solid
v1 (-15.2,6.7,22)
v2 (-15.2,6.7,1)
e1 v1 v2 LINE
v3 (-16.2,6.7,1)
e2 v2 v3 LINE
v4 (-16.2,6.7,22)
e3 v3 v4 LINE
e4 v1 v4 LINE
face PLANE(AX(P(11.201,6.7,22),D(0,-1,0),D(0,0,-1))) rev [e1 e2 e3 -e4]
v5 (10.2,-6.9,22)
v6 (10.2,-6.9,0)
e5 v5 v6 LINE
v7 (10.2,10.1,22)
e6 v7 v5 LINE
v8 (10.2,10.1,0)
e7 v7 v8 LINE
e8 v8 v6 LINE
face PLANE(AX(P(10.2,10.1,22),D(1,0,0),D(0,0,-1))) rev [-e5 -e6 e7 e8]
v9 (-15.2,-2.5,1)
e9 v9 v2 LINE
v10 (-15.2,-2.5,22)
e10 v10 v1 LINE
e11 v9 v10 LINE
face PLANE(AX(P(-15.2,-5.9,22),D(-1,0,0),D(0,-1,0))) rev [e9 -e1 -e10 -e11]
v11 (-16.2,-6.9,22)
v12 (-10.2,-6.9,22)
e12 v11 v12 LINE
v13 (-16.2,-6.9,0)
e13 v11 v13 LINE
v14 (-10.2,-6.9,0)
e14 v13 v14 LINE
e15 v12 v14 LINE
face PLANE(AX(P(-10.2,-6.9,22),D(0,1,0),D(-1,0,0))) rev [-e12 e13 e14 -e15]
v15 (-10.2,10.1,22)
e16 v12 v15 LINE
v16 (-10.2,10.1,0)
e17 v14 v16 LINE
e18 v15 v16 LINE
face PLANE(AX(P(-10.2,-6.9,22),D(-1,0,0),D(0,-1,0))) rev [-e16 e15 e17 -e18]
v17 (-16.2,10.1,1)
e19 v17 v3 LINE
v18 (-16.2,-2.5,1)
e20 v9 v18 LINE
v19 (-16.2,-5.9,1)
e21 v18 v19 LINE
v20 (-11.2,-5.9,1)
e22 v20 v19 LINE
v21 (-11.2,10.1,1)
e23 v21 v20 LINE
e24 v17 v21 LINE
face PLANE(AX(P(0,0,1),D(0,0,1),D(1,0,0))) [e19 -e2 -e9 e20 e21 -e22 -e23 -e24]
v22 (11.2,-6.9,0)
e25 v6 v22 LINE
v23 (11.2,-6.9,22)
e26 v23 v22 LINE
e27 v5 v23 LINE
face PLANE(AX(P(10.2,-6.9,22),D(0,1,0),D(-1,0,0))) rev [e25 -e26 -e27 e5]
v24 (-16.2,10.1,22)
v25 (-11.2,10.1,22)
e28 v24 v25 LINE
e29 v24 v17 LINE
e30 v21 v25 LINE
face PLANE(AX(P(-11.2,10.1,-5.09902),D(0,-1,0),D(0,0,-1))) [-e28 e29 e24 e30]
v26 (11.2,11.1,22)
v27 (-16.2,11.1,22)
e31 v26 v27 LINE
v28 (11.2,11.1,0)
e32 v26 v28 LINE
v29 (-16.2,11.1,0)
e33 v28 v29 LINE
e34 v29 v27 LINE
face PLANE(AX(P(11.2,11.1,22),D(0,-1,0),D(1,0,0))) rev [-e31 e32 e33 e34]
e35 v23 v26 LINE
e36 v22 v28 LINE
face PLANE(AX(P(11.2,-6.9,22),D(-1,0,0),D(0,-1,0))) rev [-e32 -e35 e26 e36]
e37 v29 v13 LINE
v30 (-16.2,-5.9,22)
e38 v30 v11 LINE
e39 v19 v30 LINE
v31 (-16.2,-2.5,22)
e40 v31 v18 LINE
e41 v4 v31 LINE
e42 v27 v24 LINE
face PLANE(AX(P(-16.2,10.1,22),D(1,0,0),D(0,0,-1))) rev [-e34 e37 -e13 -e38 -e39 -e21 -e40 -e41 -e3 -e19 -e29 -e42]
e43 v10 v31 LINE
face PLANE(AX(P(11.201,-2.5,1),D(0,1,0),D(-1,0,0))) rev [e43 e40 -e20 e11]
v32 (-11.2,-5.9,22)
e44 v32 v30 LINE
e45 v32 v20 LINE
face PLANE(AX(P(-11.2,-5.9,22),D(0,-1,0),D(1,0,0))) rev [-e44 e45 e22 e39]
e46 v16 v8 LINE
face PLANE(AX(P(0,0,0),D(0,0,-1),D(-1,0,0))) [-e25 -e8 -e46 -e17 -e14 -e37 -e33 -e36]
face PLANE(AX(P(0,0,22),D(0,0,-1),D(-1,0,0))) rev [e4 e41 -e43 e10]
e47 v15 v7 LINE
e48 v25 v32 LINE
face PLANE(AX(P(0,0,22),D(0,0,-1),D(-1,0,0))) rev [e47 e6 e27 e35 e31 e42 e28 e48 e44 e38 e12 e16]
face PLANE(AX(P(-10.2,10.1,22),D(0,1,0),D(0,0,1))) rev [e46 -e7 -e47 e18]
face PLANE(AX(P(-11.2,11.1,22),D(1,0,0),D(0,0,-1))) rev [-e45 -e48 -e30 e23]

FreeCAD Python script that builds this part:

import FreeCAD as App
import Part
import Sketcher
from FreeCAD import Vector
Q = App.Units.Quantity


def add_polygon(sketch, points):
    """Adds a closed chain of lines whose ends are joined by coincident constraints."""
    first, n = sketch.GeometryCount, len(points)
    for a, b in zip(points, points[1:] + points[:1]):
        sketch.addGeometry(Part.LineSegment(App.Vector(*a, 0), App.Vector(*b, 0)), False)
    for i in range(n):
        sketch.addConstraint(Sketcher.Constraint("Coincident", first + i, 2, first + (i + 1) % n, 1))

doc = App.newDocument("Part")
body = doc.addObject("PartDesign::Body", "Body")

# Sketch on XY plane
sketch1 = body.newObject("Sketcher::SketchObject", "Sketch")
sketch1.AttachmentSupport = (doc.getObject("XY_Plane"), [""])
sketch1.MapMode = "FlatFace"
add_polygon(sketch1, [(11.2, -6.9), (11.2, 11.1), (-11.2, 11.1), (-11.2, -5.9), (-15.2, -5.9), (-15.2, 10.1), (-16.2, 10.1), (-16.2, -6.9), (-10.2, -6.9), (-10.2, 10.1), (10.2, 10.1), (10.2, -6.9)])  # lines 0-11
sketch1.addConstraint([
    Sketcher.Constraint("Vertical", 0),
    Sketcher.Constraint("Horizontal", 1),
    Sketcher.Constraint("Vertical", 2),
    Sketcher.Constraint("Horizontal", 3),
    Sketcher.Constraint("Vertical", 4),
    Sketcher.Constraint("Horizontal", 5),
    Sketcher.Constraint("Vertical", 6),
    Sketcher.Constraint("Horizontal", 7),
    Sketcher.Constraint("Vertical", 8),
    Sketcher.Constraint("Horizontal", 9),
    Sketcher.Constraint("Vertical", 10),
    Sketcher.Constraint("Horizontal", 11),
    Sketcher.Constraint("Symmetric", 7, 2, 10, 2, -2),
    Sketcher.Constraint("Horizontal", 5, 2, 8, 2),
    Sketcher.Constraint("Equal", 5, 11),
    Sketcher.Constraint("Equal", 2, 6),
    Sketcher.Constraint("DistanceX", 3, 2, 3, 1, Q("4 mm")),
    Sketcher.Constraint("DistanceX", 5, 2, 5, 1, Q("1 mm")),
    Sketcher.Constraint("DistanceX", 7, 1, 7, 2, Q("6 mm")),
    Sketcher.Constraint("DistanceY", 0, 1, 0, 2, Q("18 mm")),
    Sketcher.Constraint("DistanceY", 2, 2, 2, 1, Q("17 mm")),
    Sketcher.Constraint("DistanceX", 1, 2, 1, 1, Q("22.4 mm")),
    Sketcher.Constraint("DistanceY", -1, 1, 0, 2, Q("11.1 mm")),
])
pad1 = body.newObject("PartDesign::Pad", "Pad")
pad1.Profile = sketch1
pad1.Length = 22

# Sketch on XY plane
sketch2 = body.newObject("Sketcher::SketchObject", "Sketch001")
sketch2.AttachmentSupport = (doc.getObject("XY_Plane"), [""])
sketch2.MapMode = "FlatFace"
add_polygon(sketch2, [(-11.2, 10.1), (-11.2, -5.9), (-15.2, -5.9), (-15.2, 10.1)])  # lines 0-3
sketch2.addConstraint([
    Sketcher.Constraint("Vertical", 0),
    Sketcher.Constraint("Horizontal", 1),
    Sketcher.Constraint("Vertical", 2),
    Sketcher.Constraint("Horizontal", 3),
    Sketcher.Constraint("DistanceX", 1, 2, 1, 1, Q("4 mm")),
    Sketcher.Constraint("DistanceY", 0, 2, 0, 1, Q("16 mm")),
    Sketcher.Constraint("DistanceX", 0, 2, -1, 1, Q("11.2 mm")),
    Sketcher.Constraint("DistanceY", 0, 2, -1, 1, Q("5.9 mm")),
])
pad2 = body.newObject("PartDesign::Pad", "Pad001")
pad2.Profile = sketch2
pad2.Length = 1

# Sketch on XY plane
sketch3 = body.newObject("Sketcher::SketchObject", "Sketch002")
sketch3.AttachmentSupport = (doc.getObject("XY_Plane"), [""])
sketch3.MapMode = "FlatFace"
sketch3.AttachmentOffset = App.Placement(Vector(0, 0, 22), App.Rotation())
add_polygon(sketch3, [(-16.2, 11.1), (-16.2, 10.1), (-11.2, 10.1), (-11.2, 11.1)])  # lines 0-3
sketch3.addConstraint([
    Sketcher.Constraint("Vertical", 0),
    Sketcher.Constraint("Horizontal", 1),
    Sketcher.Constraint("Vertical", 2),
    Sketcher.Constraint("Horizontal", 3),
    Sketcher.Constraint("DistanceX", 1, 1, 1, 2, Q("5 mm")),
    Sketcher.Constraint("DistanceY", 0, 2, 0, 1, Q("1 mm")),
    Sketcher.Constraint("DistanceX", 0, 2, -1, 1, Q("16.2 mm")),
    Sketcher.Constraint("DistanceY", -1, 1, 0, 2, Q("10.1 mm")),
])
pad3 = body.newObject("PartDesign::Pad", "Pad002")
pad3.Profile = sketch3
pad3.Length = 22
pad3.Reversed = True

# Sketch on YZ plane
sketch4 = body.newObject("Sketcher::SketchObject", "Sketch003")
sketch4.AttachmentSupport = (doc.getObject("YZ_Plane"), [""])
sketch4.MapMode = "FlatFace"
sketch4.AttachmentOffset = App.Placement(Vector(0, 0, -16.2), App.Rotation())
add_polygon(sketch4, [(-2.5, 1), (-5.9, 1), (-5.9, 22), (-2.5, 22)])  # lines 0-3
sketch4.addConstraint([
    Sketcher.Constraint("Horizontal", 0),
    Sketcher.Constraint("Vertical", 1),
    Sketcher.Constraint("Horizontal", 2),
    Sketcher.Constraint("Vertical", 3),
    Sketcher.Constraint("DistanceY", 1, 1, 1, 2, Q("21 mm")),
    Sketcher.Constraint("DistanceX", 0, 2, 0, 1, Q("3.4 mm")),
    Sketcher.Constraint("DistanceY", -1, 1, 0, 2, Q("1 mm")),
    Sketcher.Constraint("DistanceX", 0, 2, -1, 1, Q("5.9 mm")),
])
pocket1 = body.newObject("PartDesign::Pocket", "Pocket")
pocket1.Profile = sketch4
pocket1.Type = "UpToFirst"
pocket1.Reversed = True

# Sketch on YZ plane
sketch5 = body.newObject("Sketcher::SketchObject", "Sketch004")
sketch5.AttachmentSupport = (doc.getObject("YZ_Plane"), [""])
sketch5.MapMode = "FlatFace"
sketch5.AttachmentOffset = App.Placement(Vector(0, 0, -16.2), App.Rotation())
add_polygon(sketch5, [(10.1, 1), (6.7, 1), (6.7, 22), (10.1, 22)])  # lines 0-3
sketch5.addConstraint([
    Sketcher.Constraint("Horizontal", 0),
    Sketcher.Constraint("Vertical", 1),
    Sketcher.Constraint("Horizontal", 2),
    Sketcher.Constraint("Vertical", 3),
    Sketcher.Constraint("DistanceY", 1, 1, 1, 2, Q("21 mm")),
    Sketcher.Constraint("DistanceX", 0, 2, 0, 1, Q("3.4 mm")),
    Sketcher.Constraint("DistanceY", -1, 1, 0, 2, Q("1 mm")),
    Sketcher.Constraint("DistanceX", -1, 1, 0, 2, Q("6.7 mm")),
])
pocket2 = body.newObject("PartDesign::Pocket", "Pocket001")
pocket2.Profile = sketch5
pocket2.Type = "UpToFirst"
pocket2.Reversed = True

doc.recompute()
